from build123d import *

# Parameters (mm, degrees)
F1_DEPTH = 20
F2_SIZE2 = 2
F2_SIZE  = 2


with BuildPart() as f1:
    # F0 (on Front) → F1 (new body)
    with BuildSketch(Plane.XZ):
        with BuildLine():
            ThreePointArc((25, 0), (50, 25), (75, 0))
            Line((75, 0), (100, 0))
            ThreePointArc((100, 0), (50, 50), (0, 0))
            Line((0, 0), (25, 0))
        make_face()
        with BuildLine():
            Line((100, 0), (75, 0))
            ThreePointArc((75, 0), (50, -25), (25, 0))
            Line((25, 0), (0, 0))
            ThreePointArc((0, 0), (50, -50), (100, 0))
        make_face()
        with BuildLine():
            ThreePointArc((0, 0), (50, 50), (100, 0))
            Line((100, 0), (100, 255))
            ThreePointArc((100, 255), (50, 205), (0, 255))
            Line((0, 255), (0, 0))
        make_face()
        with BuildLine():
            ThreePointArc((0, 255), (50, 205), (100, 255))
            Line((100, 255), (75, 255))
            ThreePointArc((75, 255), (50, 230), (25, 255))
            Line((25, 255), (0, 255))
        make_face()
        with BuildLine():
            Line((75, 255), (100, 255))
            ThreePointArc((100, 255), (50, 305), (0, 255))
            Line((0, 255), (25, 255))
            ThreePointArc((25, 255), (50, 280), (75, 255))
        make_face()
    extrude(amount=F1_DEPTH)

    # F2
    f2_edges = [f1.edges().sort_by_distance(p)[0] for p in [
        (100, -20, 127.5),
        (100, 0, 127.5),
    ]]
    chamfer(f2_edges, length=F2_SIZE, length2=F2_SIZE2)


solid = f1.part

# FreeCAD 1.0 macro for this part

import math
import FreeCAD as App
import Part
import Sketcher

V = App.Vector
Q = App.Units.Quantity


def edges_at(feature, points):
    """Names of the edges that pass closest to the given points."""
    edges = feature.Shape.Edges
    near = lambda p: min(range(len(edges)), key=lambda i: edges[i].distToShape(Part.Vertex(*p))[0])
    return sorted({f"Edge{near(p) + 1}" for p in points})

doc = App.newDocument("Part")
params = doc.addObject("Spreadsheet::Sheet", "Params")
for row, (alias, value) in enumerate([
    ("sketch1_diameter", "50 mm"),
    ("sketch1_radius", "50 mm"),
    ("sketch1_height", "255 mm"),
    ("pad1_length", "20 mm"),
    ("chamfer_size", "2 mm"),
    ("chamfer_size2", "2 mm"),
], start=1):
    params.set(f"A{row}", alias)
    params.set(f"B{row}", "=" + value)
    params.setAlias(f"B{row}", alias)

body = doc.addObject("PartDesign::Body", "Body")

sketch1 = body.newObject("Sketcher::SketchObject", "Sketch")
sketch1.AttachmentSupport = (doc.getObject("XZ_Plane"), [""])
sketch1.MapMode = "FlatFace"
sketch1.addGeometry([
    Part.ArcOfCircle(Part.Circle(V(50, 0, 0), V(0, 0, 1), 50), math.radians(180), math.radians(360)),
    Part.LineSegment(V(100, 0, 0), V(100, 255, 0)),
    Part.ArcOfCircle(Part.Circle(V(50, 255, 0), V(0, 0, 1), 50), math.radians(0), math.radians(180)),
    Part.LineSegment(V(0, 255, 0), V(0, 0, 0)),
    Part.Circle(V(50, 0, 0), V(0, 0, 1), 25),
    Part.Circle(V(50, 255, 0), V(0, 0, 1), 25),
], False)
sketch1.addConstraint([
    Sketcher.Constraint("Tangent", 0, 2, 1, 1),
    Sketcher.Constraint("Tangent", 1, 2, 2, 1),
    Sketcher.Constraint("Tangent", 2, 2, 3, 1),
    Sketcher.Constraint("Tangent", 3, 2, 0, 1),
    Sketcher.Constraint("Vertical", 1),
    Sketcher.Constraint("Vertical", 3),
    Sketcher.Constraint("Coincident", 3, 2, -1, 1),
    Sketcher.Constraint("Coincident", 4, 3, 0, 3),
    Sketcher.Constraint("Coincident", 5, 3, 2, 3),
    Sketcher.Constraint("Equal", 4, 5),
    Sketcher.Constraint("Diameter", 4, Q("50 mm")),
    Sketcher.Constraint("Radius", 0, Q("50 mm")),
    Sketcher.Constraint("DistanceY", 1, 1, 1, 2, Q("255 mm")),
])
sketch1.setExpression("Constraints[10]", "Params.sketch1_diameter")
sketch1.setExpression("Constraints[11]", "Params.sketch1_radius")
sketch1.setExpression("Constraints[12]", "Params.sketch1_height")
pad1 = body.newObject("PartDesign::Pad", "Pad")
pad1.Profile = sketch1
pad1.setExpression("Length", "Params.pad1_length")
doc.recompute()

chamfer = body.newObject("PartDesign::Chamfer", "Chamfer")
chamfer.Base = (pad1, edges_at(pad1, [(100, -20, 127.5), (100, 0, 127.5)]))
chamfer.ChamferType = "Two distances"
chamfer.setExpression("Size", "Params.chamfer_size")
chamfer.setExpression("Size2", "Params.chamfer_size2")

doc.recompute()
